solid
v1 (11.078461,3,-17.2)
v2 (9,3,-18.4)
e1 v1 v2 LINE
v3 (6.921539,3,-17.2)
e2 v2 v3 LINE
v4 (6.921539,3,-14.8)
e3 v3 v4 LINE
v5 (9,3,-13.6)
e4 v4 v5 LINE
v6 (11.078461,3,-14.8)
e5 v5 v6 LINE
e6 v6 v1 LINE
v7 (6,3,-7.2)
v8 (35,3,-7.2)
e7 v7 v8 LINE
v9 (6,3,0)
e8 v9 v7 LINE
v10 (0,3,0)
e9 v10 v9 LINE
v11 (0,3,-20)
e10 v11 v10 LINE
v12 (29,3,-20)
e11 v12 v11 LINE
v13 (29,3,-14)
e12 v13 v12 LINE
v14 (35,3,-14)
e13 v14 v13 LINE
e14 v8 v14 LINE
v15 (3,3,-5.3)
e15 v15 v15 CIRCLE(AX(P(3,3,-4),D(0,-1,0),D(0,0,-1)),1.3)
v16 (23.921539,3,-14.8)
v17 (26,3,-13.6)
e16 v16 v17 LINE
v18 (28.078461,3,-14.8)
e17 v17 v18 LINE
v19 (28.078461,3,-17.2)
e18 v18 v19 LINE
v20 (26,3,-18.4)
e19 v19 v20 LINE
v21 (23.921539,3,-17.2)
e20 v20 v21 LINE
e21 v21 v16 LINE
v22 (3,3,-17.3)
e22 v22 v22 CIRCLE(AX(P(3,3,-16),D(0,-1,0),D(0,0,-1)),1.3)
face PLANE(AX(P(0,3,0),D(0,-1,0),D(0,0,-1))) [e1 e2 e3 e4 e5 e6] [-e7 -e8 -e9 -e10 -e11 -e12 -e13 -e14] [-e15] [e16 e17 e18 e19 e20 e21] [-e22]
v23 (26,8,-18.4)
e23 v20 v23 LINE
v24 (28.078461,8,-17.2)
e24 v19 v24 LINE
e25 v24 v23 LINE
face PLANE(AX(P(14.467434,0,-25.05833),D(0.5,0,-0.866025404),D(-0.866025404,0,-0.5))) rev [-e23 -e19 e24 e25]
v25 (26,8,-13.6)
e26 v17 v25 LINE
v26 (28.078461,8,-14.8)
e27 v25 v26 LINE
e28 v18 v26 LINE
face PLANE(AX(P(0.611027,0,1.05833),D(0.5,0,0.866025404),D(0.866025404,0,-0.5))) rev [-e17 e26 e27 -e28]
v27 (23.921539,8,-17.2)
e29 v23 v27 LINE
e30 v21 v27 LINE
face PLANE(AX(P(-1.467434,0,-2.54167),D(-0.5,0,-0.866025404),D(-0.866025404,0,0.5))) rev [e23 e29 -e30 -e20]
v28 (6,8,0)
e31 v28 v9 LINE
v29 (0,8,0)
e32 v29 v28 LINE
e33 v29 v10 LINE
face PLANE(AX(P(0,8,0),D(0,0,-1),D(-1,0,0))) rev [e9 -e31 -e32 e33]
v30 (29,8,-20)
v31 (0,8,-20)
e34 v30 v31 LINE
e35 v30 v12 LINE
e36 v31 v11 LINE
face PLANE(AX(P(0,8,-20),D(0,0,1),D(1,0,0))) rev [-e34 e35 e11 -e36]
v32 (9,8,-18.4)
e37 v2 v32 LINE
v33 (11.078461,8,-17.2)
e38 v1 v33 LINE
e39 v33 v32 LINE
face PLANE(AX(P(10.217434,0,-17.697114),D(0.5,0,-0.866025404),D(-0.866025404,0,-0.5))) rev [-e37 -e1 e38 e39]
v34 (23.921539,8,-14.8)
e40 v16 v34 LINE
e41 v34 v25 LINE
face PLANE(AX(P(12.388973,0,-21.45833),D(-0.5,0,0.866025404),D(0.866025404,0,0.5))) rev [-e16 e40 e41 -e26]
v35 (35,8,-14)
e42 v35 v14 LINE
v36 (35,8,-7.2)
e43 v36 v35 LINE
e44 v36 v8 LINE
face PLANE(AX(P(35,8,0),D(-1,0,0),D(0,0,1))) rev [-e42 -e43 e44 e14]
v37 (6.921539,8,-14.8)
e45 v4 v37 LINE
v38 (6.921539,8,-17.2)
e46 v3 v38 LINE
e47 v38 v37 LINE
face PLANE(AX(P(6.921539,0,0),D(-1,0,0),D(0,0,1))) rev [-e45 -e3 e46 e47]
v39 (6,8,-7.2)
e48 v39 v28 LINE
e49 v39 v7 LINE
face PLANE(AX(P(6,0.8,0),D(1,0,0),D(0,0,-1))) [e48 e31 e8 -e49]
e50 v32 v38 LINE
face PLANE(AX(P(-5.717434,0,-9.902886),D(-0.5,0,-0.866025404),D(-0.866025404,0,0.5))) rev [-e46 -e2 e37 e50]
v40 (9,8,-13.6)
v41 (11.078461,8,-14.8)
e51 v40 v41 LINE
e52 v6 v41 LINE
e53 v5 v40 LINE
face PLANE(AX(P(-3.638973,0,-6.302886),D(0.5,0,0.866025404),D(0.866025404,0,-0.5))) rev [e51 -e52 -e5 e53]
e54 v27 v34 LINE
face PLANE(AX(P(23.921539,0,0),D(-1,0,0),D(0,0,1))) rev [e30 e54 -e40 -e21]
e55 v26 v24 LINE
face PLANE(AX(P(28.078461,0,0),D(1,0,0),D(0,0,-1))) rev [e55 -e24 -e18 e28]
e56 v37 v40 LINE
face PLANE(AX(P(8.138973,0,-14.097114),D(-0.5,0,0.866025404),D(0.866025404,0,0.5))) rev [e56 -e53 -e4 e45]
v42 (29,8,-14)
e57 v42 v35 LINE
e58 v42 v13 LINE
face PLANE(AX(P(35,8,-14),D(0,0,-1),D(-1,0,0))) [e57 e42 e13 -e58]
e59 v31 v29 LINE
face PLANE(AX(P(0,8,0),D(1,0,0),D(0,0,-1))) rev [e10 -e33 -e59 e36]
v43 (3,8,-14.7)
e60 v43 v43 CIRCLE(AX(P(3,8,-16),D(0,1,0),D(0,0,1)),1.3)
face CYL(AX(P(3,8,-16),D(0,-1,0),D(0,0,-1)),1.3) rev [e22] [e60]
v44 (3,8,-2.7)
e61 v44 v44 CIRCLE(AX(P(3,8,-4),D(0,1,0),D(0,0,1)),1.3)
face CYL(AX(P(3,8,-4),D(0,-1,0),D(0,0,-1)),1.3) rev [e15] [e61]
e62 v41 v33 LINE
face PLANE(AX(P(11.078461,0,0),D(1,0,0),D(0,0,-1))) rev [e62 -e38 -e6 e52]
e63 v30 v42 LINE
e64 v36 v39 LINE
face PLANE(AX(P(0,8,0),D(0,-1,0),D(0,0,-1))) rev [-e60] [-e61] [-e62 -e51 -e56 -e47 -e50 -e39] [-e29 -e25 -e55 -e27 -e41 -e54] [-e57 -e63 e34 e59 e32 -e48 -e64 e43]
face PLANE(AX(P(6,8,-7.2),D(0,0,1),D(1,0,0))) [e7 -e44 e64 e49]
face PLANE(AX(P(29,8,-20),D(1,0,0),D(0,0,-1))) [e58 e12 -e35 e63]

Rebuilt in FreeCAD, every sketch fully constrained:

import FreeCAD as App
import Part
import Sketcher
from FreeCAD import Vector
Q = App.Units.Quantity


def add_polygon(sketch, points):
    """Adds a closed chain of lines whose ends are joined by coincident constraints."""
    first, n = sketch.GeometryCount, len(points)
    for a, b in zip(points, points[1:] + points[:1]):
        sketch.addGeometry(Part.LineSegment(App.Vector(*a, 0), App.Vector(*b, 0)), False)
    for i in range(n):
        sketch.addConstraint(Sketcher.Constraint("Coincident", first + i, 2, first + (i + 1) % n, 1))

doc = App.newDocument("Part")
body = doc.addObject("PartDesign::Body", "Body")

sketch1 = body.newObject("Sketcher::SketchObject", "Sketch")
sketch1.AttachmentSupport = (doc.getObject("XZ_Plane"), [""])
sketch1.MapMode = "FlatFace"
add_polygon(sketch1, [(0, -20), (0, 0), (35, 0), (35, -20)])
sketch1.addConstraint([
    Sketcher.Constraint("Vertical", 0),
    Sketcher.Constraint("Horizontal", 1),
    Sketcher.Constraint("Vertical", 2),
    Sketcher.Constraint("Horizontal", 3),
    Sketcher.Constraint("Coincident", 0, 2, -1, 1),
    Sketcher.Constraint("DistanceX", 1, 1, 1, 2, Q("35 mm")),
    Sketcher.Constraint("DistanceY", 0, 1, 0, 2, Q("20 mm")),
])
pad1 = body.newObject("PartDesign::Pad", "Pad")
pad1.Profile = sketch1
pad1.Length = 8
pad1.Reversed = True

sketch2 = body.newObject("Sketcher::SketchObject", "Sketch001")
sketch2.AttachmentSupport = (doc.getObject("XZ_Plane"), [""])
sketch2.MapMode = "FlatFace"
add_polygon(sketch2, [(6, -14), (6, 0), (35, 0), (35, -14)])
sketch2.addConstraint([
    Sketcher.Constraint("Vertical", 0),
    Sketcher.Constraint("Horizontal", 1),
    Sketcher.Constraint("Vertical", 2),
    Sketcher.Constraint("Horizontal", 3),
    Sketcher.Constraint("PointOnObject", 0, 2, -1),
    Sketcher.Constraint("DistanceX", 1, 1, 1, 2, Q("29 mm")),
    Sketcher.Constraint("DistanceY", 0, 1, 0, 2, Q("14 mm")),
    Sketcher.Constraint("DistanceX", -1, 1, 0, 2, Q("6 mm")),
])
pocket1 = body.newObject("PartDesign::Pocket", "Pocket")
pocket1.Profile = sketch2
pocket1.Length = 0.8

sketch3 = body.newObject("Sketcher::SketchObject", "Sketch002")
sketch3.AttachmentSupport = (doc.getObject("XZ_Plane"), [""])
sketch3.MapMode = "FlatFace"
add_polygon(sketch3, [(6, -7), (6, 0), (35, 0), (35, -7)])
sketch3.addConstraint([
    Sketcher.Constraint("Vertical", 0),
    Sketcher.Constraint("Horizontal", 1),
    Sketcher.Constraint("Vertical", 2),
    Sketcher.Constraint("Horizontal", 3),
    Sketcher.Constraint("PointOnObject", 0, 2, -1),
    Sketcher.Constraint("DistanceX", 1, 1, 1, 2, Q("29 mm")),
    Sketcher.Constraint("DistanceY", 0, 1, 0, 2, Q("7.2 mm")),
    Sketcher.Constraint("DistanceX", -1, 1, 0, 2, Q("6 mm")),
])
pocket2 = body.newObject("PartDesign::Pocket", "Pocket001")
pocket2.Profile = sketch3
pocket2.Type = "ThroughAll"

sketch4 = body.newObject("Sketcher::SketchObject", "Sketch003")
sketch4.AttachmentSupport = (doc.getObject("XZ_Plane"), [""])
sketch4.MapMode = "FlatFace"
add_polygon(sketch4, [(29, -20), (29, -14), (35, -14), (35, -20)])
sketch4.addConstraint([
    Sketcher.Constraint("Vertical", 0),
    Sketcher.Constraint("Horizontal", 1),
    Sketcher.Constraint("Vertical", 2),
    Sketcher.Constraint("Horizontal", 3),
    Sketcher.Constraint("Equal", 3, 0),
    Sketcher.Constraint("DistanceX", 1, 1, 1, 2, Q("6 mm")),
    Sketcher.Constraint("DistanceX", -1, 1, 0, 2, Q("29 mm")),
    Sketcher.Constraint("DistanceY", 0, 2, -1, 1, Q("14 mm")),
])
pocket3 = body.newObject("PartDesign::Pocket", "Pocket002")
pocket3.Profile = sketch4
pocket3.Type = "ThroughAll"

sketch5 = body.newObject("Sketcher::SketchObject", "Sketch004")
sketch5.AttachmentSupport = (doc.getObject("XZ_Plane"), [""])
sketch5.MapMode = "FlatFace"
sketch5.addGeometry([
    Part.Circle(Vector(3, -16, 0), Vector(0, 0, 1), 1.3),
    Part.Circle(Vector(3, -4, 0), Vector(0, 0, 1), 1.3),
    Part.Circle(Vector(9, -16, 0), Vector(0, 0, 1), 1.3),
    Part.Circle(Vector(26, -16, 0), Vector(0, 0, 1), 1.3),
], False)
sketch5.addConstraint([
    Sketcher.Constraint("Equal", 0, 1),
    Sketcher.Constraint("Equal", 1, 2),
    Sketcher.Constraint("Equal", 2, 3),
    Sketcher.Constraint("Horizontal", 0, 3, 2, 3),
    Sketcher.Constraint("Horizontal", 2, 3, 3, 3),
    Sketcher.Constraint("Vertical", 0, 3, 1, 3),
    Sketcher.Constraint("Diameter", 0, Q("2.6 mm")),
    Sketcher.Constraint("DistanceX", -1, 1, 0, 3, Q("3 mm")),
    Sketcher.Constraint("DistanceY", 0, 3, -1, 1, Q("16 mm")),
    Sketcher.Constraint("DistanceY", 1, 3, -1, 1, Q("4 mm")),
    Sketcher.Constraint("DistanceX", -1, 1, 2, 3, Q("9 mm")),
    Sketcher.Constraint("DistanceX", -1, 1, 3, 3, Q("26 mm")),
])
pocket4 = body.newObject("PartDesign::Pocket", "Pocket003")
pocket4.Profile = sketch5
pocket4.Type = "ThroughAll"

sketch6 = body.newObject("Sketcher::SketchObject", "Sketch005")
sketch6.AttachmentSupport = (doc.getObject("XZ_Plane"), [""])
sketch6.MapMode = "FlatFace"
sketch6.AttachmentOffset = App.Placement(Vector(0, 0, -8), App.Rotation())
add_polygon(sketch6, [(26, -18.4), (23.9, -17.2), (23.9, -14.8), (26, -13.6), (28.1, -14.8), (28.1, -17.2)])
add_polygon(sketch6, [(9, -18.4), (6.9, -17.2), (6.9, -14.8), (9, -13.6), (11.1, -14.8), (11.1, -17.2)])
sketch6.addConstraint([
    Sketcher.Constraint("Vertical", 1),
    Sketcher.Constraint("Vertical", 4),
    Sketcher.Constraint("Vertical", 7),
    Sketcher.Constraint("Vertical", 10),
    Sketcher.Constraint("Parallel", 0, 3),
    Sketcher.Constraint("Parallel", 2, 5),
    Sketcher.Constraint("Parallel", 3, 6),
    Sketcher.Constraint("Parallel", 5, 8),
    Sketcher.Constraint("Parallel", 6, 9),
    Sketcher.Constraint("Parallel", 8, 11),
    Sketcher.Constraint("Horizontal", 1, 2, 3, 2),
    Sketcher.Constraint("Horizontal", 0, 2, 4, 2),
    Sketcher.Constraint("Horizontal", 4, 2, 6, 2),
    Sketcher.Constraint("Horizontal", 3, 2, 7, 2),
    Sketcher.Constraint("Horizontal", 2, 2, 8, 2),
    Sketcher.Constraint("Horizontal", 7, 2, 9, 2),
    Sketcher.Constraint("Horizontal", 6, 2, 10, 2),
    Sketcher.Constraint("Vertical", 2, 2, 5, 2),
    Sketcher.Constraint("Angle", 0, Q("150 deg")),
    Sketcher.Constraint("DistanceY", 1, 1, 1, 2, Q("2.4 mm")),
    Sketcher.Constraint("DistanceX", -1, 1, 2, 2, Q("26 mm")),
    Sketcher.Constraint("DistanceX", -1, 1, 8, 2, Q("9 mm")),
    Sketcher.Constraint("Distance", 0, Q("2.4 mm")),
    Sketcher.Constraint("DistanceY", 0, 2, -1, 1, Q("17.2 mm")),
])
pocket5 = body.newObject("PartDesign::Pocket", "Pocket004")
pocket5.Profile = sketch6
pocket5.Type = "ThroughAll"
pocket5.Reversed = True

sketch7 = body.newObject("Sketcher::SketchObject", "Sketch006")
sketch7.AttachmentSupport = (doc.getObject("XZ_Plane"), [""])
sketch7.MapMode = "FlatFace"
sketch7.addGeometry([
    Part.Circle(Vector(3, -16, 0), Vector(0, 0, 1), 2.2),
    Part.Circle(Vector(3, -4, 0), Vector(0, 0, 1), 2.2),
], False)
sketch7.addConstraint([
    Sketcher.Constraint("Equal", 0, 1),
    Sketcher.Constraint("Vertical", 0, 3, 1, 3),
    Sketcher.Constraint("Diameter", 0, Q("4.4 mm")),
    Sketcher.Constraint("DistanceX", -1, 1, 0, 3, Q("3 mm")),
    Sketcher.Constraint("DistanceY", 0, 3, -1, 1, Q("16 mm")),
    Sketcher.Constraint("DistanceY", 1, 3, -1, 1, Q("4 mm")),
])
pocket6 = body.newObject("PartDesign::Pocket", "Pocket005")
pocket6.Profile = sketch7
pocket6.Length = 2

sketch8 = body.newObject("Sketcher::SketchObject", "Sketch007")
sketch8.AttachmentSupport = (doc.getObject("XZ_Plane"), [""])
sketch8.MapMode = "FlatFace"
add_polygon(sketch8, [(0, -20), (0, 0), (35, 0), (35, -20)])
sketch8.addConstraint([
    Sketcher.Constraint("Vertical", 0),
    Sketcher.Constraint("Horizontal", 1),
    Sketcher.Constraint("Vertical", 2),
    Sketcher.Constraint("Horizontal", 3),
    Sketcher.Constraint("Coincident", 0, 2, -1, 1),
    Sketcher.Constraint("DistanceX", 1, 1, 1, 2, Q("35 mm")),
    Sketcher.Constraint("DistanceY", 0, 1, 0, 2, Q("20 mm")),
])
pocket7 = body.newObject("PartDesign::Pocket", "Pocket006")
pocket7.Profile = sketch8
pocket7.Length = 3

doc.recompute()
